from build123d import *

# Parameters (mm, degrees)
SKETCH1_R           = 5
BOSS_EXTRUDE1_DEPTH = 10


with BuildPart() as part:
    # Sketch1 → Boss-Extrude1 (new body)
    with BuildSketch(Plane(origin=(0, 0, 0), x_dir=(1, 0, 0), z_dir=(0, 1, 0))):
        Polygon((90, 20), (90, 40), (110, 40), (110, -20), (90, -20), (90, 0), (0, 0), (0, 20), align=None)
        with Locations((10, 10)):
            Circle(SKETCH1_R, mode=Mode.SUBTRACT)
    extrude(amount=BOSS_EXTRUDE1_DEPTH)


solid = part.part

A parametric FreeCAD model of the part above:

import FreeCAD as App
import Part
import Sketcher
from FreeCAD import Vector

doc = App.newDocument("Part")
body = doc.addObject("PartDesign::Body", "Body")

sketch1 = body.newObject("Sketcher::SketchObject", "Sketch")
sketch1.AttachmentSupport = (doc.getObject("XZ_Plane"), [""])
sketch1.MapMode = "FlatFace"
sketch1.addGeometry(Part.LineSegment(Vector(90, -40, 0), Vector(90, -20, 0)), False)
sketch1.addGeometry(Part.LineSegment(Vector(90, -20, 0), Vector(0, -20, 0)), False)
sketch1.addGeometry(Part.LineSegment(Vector(0, -20, 0), Vector(0, 0, 0)), False)
sketch1.addGeometry(Part.LineSegment(Vector(0, 0, 0), Vector(90, 0, 0)), False)
sketch1.addGeometry(Part.LineSegment(Vector(90, 0, 0), Vector(90, 20, 0)), False)
sketch1.addGeometry(Part.LineSegment(Vector(90, 20, 0), Vector(110, 20, 0)), False)
sketch1.addGeometry(Part.LineSegment(Vector(110, 20, 0), Vector(110, -40, 0)), False)
sketch1.addGeometry(Part.LineSegment(Vector(110, -40, 0), Vector(90, -40, 0)), False)
sketch1.addGeometry(Part.Circle(Vector(10, -10, 0), Vector(0, 0, 1), 5), False)
sketch1.addConstraint(Sketcher.Constraint("Coincident", 0, 2, 1, 1))
sketch1.addConstraint(Sketcher.Constraint("Coincident", 1, 2, 2, 1))
sketch1.addConstraint(Sketcher.Constraint("Coincident", 2, 2, 3, 1))
sketch1.addConstraint(Sketcher.Constraint("Coincident", 3, 2, 4, 1))
sketch1.addConstraint(Sketcher.Constraint("Coincident", 4, 2, 5, 1))
sketch1.addConstraint(Sketcher.Constraint("Coincident", 5, 2, 6, 1))
sketch1.addConstraint(Sketcher.Constraint("Coincident", 6, 2, 7, 1))
sketch1.addConstraint(Sketcher.Constraint("Coincident", 7, 2, 0, 1))
sketch1.addConstraint(Sketcher.Constraint("Vertical", 0))
sketch1.addConstraint(Sketcher.Constraint("Horizontal", 1))
sketch1.addConstraint(Sketcher.Constraint("Vertical", 2))
sketch1.addConstraint(Sketcher.Constraint("Horizontal", 3))
sketch1.addConstraint(Sketcher.Constraint("Vertical", 4))
sketch1.addConstraint(Sketcher.Constraint("Horizontal", 5))
sketch1.addConstraint(Sketcher.Constraint("Vertical", 6))
sketch1.addConstraint(Sketcher.Constraint("Horizontal", 7))
sketch1.addConstraint(Sketcher.Constraint("Coincident", 2, 2, -1, 1))
sketch1.addConstraint(Sketcher.Constraint("Symmetric", 0, 2, 4, 2, -1))
sketch1.addConstraint(Sketcher.Constraint("Equal", 7, 0))
sketch1.addConstraint(Sketcher.Constraint("Equal", 0, 2))
sketch1.addConstraint(Sketcher.Constraint("Diameter", 8, 10.0))
sketch1.addConstraint(Sketcher.Constraint("DistanceX", 1, 2, 1, 1, 90.0))
sketch1.addConstraint(Sketcher.Constraint("DistanceX", 5, 1, 5, 2, 20.0))
sketch1.addConstraint(Sketcher.Constraint("DistanceX", -1, 1, 8, 3, 10.0))
sketch1.addConstraint(Sketcher.Constraint("DistanceY", 8, 3, -1, 1, 10.0))
pad1 = body.newObject("PartDesign::Pad", "Pad")
pad1.Profile = sketch1
pad1.Length = 10
pad1.Reversed = True

doc.recompute()
